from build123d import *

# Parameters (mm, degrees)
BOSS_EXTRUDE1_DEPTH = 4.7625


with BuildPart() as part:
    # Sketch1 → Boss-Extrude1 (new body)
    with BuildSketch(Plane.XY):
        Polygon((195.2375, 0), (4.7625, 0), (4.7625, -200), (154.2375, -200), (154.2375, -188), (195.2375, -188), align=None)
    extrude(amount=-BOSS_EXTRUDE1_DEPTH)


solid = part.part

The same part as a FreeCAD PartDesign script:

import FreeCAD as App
import Part
import Sketcher

V = App.Vector


def add_polygon(sketch, points):
    """Adds a closed chain of lines whose ends are joined by coincident constraints."""
    first, n = sketch.GeometryCount, len(points)
    for a, b in zip(points, points[1:] + points[:1]):
        sketch.addGeometry(Part.LineSegment(App.Vector(*a, 0), App.Vector(*b, 0)), False)
    for i in range(n):
        sketch.addConstraint(Sketcher.Constraint("Coincident", first + i, 2, first + (i + 1) % n, 1))

doc = App.newDocument("Part")
body = doc.addObject("PartDesign::Body", "Body")

sketch1 = doc.addObject("Sketcher::SketchObject", "Sketch")
body.addObject(sketch1)
sketch1.AttachmentSupport = (doc.XY_Plane, [""])
sketch1.MapMode = "FlatFace"
add_polygon(sketch1, [(195, 0), (5, 0), (5, -200), (154, -200), (154, -188), (195, -188)])
sketch1.addConstraint(Sketcher.Constraint("Horizontal", 0))
sketch1.addConstraint(Sketcher.Constraint("Vertical", 1))
sketch1.addConstraint(Sketcher.Constraint("Horizontal", 2))
sketch1.addConstraint(Sketcher.Constraint("Vertical", 3))
sketch1.addConstraint(Sketcher.Constraint("Horizontal", 4))
sketch1.addConstraint(Sketcher.Constraint("Vertical", 5))
sketch1.addConstraint(Sketcher.Constraint("PointOnObject", 0, 2, -1))
sketch1.addConstraint(Sketcher.Constraint("DistanceX", 4, 1, 4, 2, 41.0))
sketch1.addConstraint(Sketcher.Constraint("DistanceY", 1, 2, 1, 1, 200.0))
sketch1.addConstraint(Sketcher.Constraint("DistanceY", 3, 1, 3, 2, 12.0))
sketch1.addConstraint(Sketcher.Constraint("DistanceX", 0, 2, 0, 1, 190.475))
sketch1.addConstraint(Sketcher.Constraint("DistanceX", -1, 1, 0, 2, 4.7625))
pad1 = doc.addObject("PartDesign::Pad", "Pad")
body.addObject(pad1)
pad1.Profile = sketch1
pad1.Length = 4.7625
pad1.Reversed = True

doc.recompute()
